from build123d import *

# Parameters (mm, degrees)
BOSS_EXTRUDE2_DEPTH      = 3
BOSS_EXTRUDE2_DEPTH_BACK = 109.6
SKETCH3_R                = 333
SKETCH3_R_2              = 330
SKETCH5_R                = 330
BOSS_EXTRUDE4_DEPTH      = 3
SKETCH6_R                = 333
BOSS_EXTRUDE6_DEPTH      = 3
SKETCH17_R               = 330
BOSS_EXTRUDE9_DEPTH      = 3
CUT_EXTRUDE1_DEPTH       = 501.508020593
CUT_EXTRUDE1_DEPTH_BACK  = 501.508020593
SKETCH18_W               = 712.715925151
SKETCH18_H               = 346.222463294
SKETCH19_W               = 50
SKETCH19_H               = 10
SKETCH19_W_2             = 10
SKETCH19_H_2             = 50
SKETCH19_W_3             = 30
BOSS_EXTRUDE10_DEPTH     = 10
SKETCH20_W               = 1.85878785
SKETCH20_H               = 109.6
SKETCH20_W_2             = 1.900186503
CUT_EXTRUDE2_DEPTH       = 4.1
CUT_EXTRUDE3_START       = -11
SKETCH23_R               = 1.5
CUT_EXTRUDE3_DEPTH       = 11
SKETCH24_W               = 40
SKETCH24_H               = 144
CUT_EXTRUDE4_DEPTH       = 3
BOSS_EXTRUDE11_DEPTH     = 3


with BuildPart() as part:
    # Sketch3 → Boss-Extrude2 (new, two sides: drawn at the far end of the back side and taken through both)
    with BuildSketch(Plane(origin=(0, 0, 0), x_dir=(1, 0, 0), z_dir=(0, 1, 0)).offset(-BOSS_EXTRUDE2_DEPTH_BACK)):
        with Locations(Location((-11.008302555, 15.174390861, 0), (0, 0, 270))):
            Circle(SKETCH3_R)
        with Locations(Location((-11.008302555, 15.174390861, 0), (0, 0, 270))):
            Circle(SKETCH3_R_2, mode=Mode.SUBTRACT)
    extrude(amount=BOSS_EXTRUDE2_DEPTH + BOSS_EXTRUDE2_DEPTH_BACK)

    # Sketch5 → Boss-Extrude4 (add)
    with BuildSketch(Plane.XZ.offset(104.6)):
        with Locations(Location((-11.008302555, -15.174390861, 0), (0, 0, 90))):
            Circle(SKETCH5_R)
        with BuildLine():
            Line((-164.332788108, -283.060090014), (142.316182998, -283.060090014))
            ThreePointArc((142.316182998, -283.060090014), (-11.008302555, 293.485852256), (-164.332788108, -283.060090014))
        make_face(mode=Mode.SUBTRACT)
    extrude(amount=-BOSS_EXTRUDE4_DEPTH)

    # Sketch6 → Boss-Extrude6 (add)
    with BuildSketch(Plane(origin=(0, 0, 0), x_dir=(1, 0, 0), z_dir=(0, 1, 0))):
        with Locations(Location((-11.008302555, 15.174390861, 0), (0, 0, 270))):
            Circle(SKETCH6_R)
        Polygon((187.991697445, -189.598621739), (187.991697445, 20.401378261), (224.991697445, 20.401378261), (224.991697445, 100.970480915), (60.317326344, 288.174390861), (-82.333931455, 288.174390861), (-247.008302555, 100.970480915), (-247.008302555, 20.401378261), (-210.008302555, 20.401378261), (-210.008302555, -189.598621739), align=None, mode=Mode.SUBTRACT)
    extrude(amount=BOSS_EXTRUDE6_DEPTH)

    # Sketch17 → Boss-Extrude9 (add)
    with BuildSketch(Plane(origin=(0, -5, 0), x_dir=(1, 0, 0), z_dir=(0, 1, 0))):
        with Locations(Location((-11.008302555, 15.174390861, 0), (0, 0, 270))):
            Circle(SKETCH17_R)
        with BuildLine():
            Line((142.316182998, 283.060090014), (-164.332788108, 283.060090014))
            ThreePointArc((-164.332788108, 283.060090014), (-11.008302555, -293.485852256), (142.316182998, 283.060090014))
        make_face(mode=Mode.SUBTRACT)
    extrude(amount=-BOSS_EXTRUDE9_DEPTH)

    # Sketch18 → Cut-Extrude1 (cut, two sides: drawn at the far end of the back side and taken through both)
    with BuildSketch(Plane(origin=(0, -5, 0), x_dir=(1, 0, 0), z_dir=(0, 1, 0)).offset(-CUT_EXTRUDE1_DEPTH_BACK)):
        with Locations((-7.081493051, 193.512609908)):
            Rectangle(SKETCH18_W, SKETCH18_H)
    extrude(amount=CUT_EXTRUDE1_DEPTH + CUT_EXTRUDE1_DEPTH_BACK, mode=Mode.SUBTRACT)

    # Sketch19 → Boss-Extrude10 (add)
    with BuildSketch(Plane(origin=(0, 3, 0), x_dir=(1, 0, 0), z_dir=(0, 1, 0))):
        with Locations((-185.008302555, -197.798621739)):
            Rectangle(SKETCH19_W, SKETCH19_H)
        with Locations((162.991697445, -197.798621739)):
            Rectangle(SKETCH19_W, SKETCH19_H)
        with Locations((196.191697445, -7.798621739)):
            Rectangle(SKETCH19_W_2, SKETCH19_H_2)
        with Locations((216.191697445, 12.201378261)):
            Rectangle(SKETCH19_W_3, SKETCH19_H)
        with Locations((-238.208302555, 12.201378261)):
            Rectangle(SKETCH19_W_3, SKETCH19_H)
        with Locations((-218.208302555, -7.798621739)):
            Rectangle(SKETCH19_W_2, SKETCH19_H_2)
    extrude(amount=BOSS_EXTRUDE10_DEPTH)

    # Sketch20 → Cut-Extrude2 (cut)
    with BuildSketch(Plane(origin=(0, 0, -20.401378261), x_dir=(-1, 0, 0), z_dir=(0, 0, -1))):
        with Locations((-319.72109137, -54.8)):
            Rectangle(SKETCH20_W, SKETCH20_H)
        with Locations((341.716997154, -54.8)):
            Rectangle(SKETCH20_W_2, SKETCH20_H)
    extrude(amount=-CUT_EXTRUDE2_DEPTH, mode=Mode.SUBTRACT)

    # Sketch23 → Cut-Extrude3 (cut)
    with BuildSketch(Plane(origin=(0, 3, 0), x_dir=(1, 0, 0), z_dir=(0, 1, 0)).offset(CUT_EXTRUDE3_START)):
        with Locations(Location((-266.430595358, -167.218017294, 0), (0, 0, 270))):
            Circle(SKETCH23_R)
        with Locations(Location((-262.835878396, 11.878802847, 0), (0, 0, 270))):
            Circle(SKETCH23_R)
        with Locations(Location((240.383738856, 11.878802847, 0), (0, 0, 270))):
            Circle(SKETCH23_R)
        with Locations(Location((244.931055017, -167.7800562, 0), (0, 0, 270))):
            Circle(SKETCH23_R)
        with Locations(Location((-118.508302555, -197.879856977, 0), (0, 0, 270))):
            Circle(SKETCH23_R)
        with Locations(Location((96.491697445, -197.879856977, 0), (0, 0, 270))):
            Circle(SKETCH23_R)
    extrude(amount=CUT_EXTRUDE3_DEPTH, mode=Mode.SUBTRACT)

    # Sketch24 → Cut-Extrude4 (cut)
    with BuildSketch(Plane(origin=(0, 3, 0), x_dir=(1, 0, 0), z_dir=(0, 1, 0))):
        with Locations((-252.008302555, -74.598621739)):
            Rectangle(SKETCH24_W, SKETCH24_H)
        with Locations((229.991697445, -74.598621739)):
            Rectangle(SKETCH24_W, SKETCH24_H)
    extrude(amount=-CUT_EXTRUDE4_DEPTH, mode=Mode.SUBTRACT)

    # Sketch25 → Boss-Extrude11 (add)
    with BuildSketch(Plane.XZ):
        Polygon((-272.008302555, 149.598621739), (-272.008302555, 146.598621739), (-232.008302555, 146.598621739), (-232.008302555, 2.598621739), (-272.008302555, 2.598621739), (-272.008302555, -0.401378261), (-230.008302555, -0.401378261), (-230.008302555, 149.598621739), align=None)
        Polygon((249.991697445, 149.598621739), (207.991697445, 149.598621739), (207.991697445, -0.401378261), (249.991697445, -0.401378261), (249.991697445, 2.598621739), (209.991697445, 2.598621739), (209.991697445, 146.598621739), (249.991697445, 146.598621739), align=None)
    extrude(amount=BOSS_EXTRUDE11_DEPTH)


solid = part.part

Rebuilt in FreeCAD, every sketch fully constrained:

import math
import FreeCAD as App
import Part
import Sketcher
from FreeCAD import Vector


def add_polygon(sketch, points):
    """Adds a closed chain of lines whose ends are joined by coincident constraints."""
    first, n = sketch.GeometryCount, len(points)
    for a, b in zip(points, points[1:] + points[:1]):
        sketch.addGeometry(Part.LineSegment(App.Vector(*a, 0), App.Vector(*b, 0)), False)
    for i in range(n):
        sketch.addConstraint(Sketcher.Constraint("Coincident", first + i, 2, first + (i + 1) % n, 1))

doc = App.newDocument("Part")
body = doc.addObject("PartDesign::Body", "Body")

sketch1 = body.newObject("Sketcher::SketchObject", "Sketch")
sketch1.AttachmentSupport = (doc.getObject("XZ_Plane"), [""])
sketch1.MapMode = "FlatFace"
sketch1.addGeometry(Part.Circle(Vector(-11, -15, 0), Vector(0, 0, 1), 333), False)
sketch1.addGeometry(Part.Circle(Vector(-11, -15, 0), Vector(0, 0, 1), 330), False)
sketch1.addConstraint(Sketcher.Constraint("Coincident", 1, 3, 0, 3))
sketch1.addConstraint(Sketcher.Constraint("Diameter", 0, 666.0))
sketch1.addConstraint(Sketcher.Constraint("Diameter", 1, 660.0))
sketch1.addConstraint(Sketcher.Constraint("DistanceY", 0, 3, -1, 1, 15.174391))
sketch1.addConstraint(Sketcher.Constraint("DistanceX", 0, 3, -1, 1, 11.008303))
pad1 = body.newObject("PartDesign::Pad", "Pad")
pad1.Profile = sketch1
pad1.Type = "TwoLengths"
pad1.Length = 3
pad1.Length2 = 109.6
pad1.Reversed = True

sketch2 = body.newObject("Sketcher::SketchObject", "Sketch001")
sketch2.AttachmentSupport = (doc.getObject("XZ_Plane"), [""])
sketch2.MapMode = "FlatFace"
sketch2.AttachmentOffset = App.Placement(Vector(0, 0, 104.6), App.Rotation())
sketch2.addGeometry(Part.Circle(Vector(-11, -15, 0), Vector(0, 0, 1), 330), False)
sketch2.addGeometry(Part.LineSegment(Vector(142, -283, 0), Vector(-164, -283, 0)), False)
sketch2.addGeometry(Part.ArcOfCircle(Part.Circle(Vector(-11, -15, 0), Vector(0, 0, 1), 309), math.radians(-60), math.radians(240)), False)
sketch2.addConstraint(Sketcher.Constraint("Coincident", 1, 1, 2, 1))
sketch2.addConstraint(Sketcher.Constraint("Coincident", 2, 2, 1, 2))
sketch2.addConstraint(Sketcher.Constraint("Horizontal", 1))
sketch2.addConstraint(Sketcher.Constraint("Coincident", 2, 3, 0, 3))
sketch2.addConstraint(Sketcher.Constraint("Diameter", 0, 660.0))
sketch2.addConstraint(Sketcher.Constraint("Radius", 2, 308.660243))
sketch2.addConstraint(Sketcher.Constraint("DistanceX", 1, 2, 1, 1, 306.648971))
sketch2.addConstraint(Sketcher.Constraint("DistanceY", 0, 3, -1, 1, 15.174391))
sketch2.addConstraint(Sketcher.Constraint("DistanceX", 0, 3, -1, 1, 11.008303))
pad2 = body.newObject("PartDesign::Pad", "Pad001")
pad2.Profile = sketch2
pad2.Length = 3
pad2.Reversed = True

sketch3 = body.newObject("Sketcher::SketchObject", "Sketch002")
sketch3.AttachmentSupport = (doc.getObject("XZ_Plane"), [""])
sketch3.MapMode = "FlatFace"
sketch3.addGeometry(Part.Circle(Vector(-11, -15, 0), Vector(0, 0, 1), 333), False)
add_polygon(sketch3, [(188, -20), (188, 190), (-210, 190), (-210, -20), (-247, -20), (-247, -101), (-82, -288), (60, -288), (225, -101), (225, -20)])
sketch3.addConstraint(Sketcher.Constraint("Vertical", 1))
sketch3.addConstraint(Sketcher.Constraint("Horizontal", 2))
sketch3.addConstraint(Sketcher.Constraint("Vertical", 3))
sketch3.addConstraint(Sketcher.Constraint("Horizontal", 4))
sketch3.addConstraint(Sketcher.Constraint("Vertical", 5))
sketch3.addConstraint(Sketcher.Constraint("Horizontal", 7))
sketch3.addConstraint(Sketcher.Constraint("Vertical", 9))
sketch3.addConstraint(Sketcher.Constraint("Horizontal", 10))
sketch3.addConstraint(Sketcher.Constraint("Horizontal", 5, 2, 8, 2))
sketch3.addConstraint(Sketcher.Constraint("Horizontal", 4, 2, 9, 2))
sketch3.addConstraint(Sketcher.Constraint("Equal", 4, 10))
sketch3.addConstraint(Sketcher.Constraint("Equal", 6, 8))
sketch3.addConstraint(Sketcher.Constraint("Diameter", 0, 666.0))
sketch3.addConstraint(Sketcher.Constraint("DistanceX", 2, 2, 2, 1, 398.0))
sketch3.addConstraint(Sketcher.Constraint("DistanceX", 4, 2, 4, 1, 37.0))
sketch3.addConstraint(Sketcher.Constraint("DistanceY", 1, 1, 1, 2, 210.0))
sketch3.addConstraint(Sketcher.Constraint("DistanceX", 0, 3, 1, 2, 199.0))
sketch3.addConstraint(Sketcher.Constraint("DistanceY", 6, 2, 0, 3, 273.0))
sketch3.addConstraint(Sketcher.Constraint("DistanceX", 7, 1, 7, 2, 142.651258))
sketch3.addConstraint(Sketcher.Constraint("DistanceY", 5, 2, 5, 1, 80.569103))
sketch3.addConstraint(Sketcher.Constraint("DistanceY", 0, 3, -1, 1, 15.174391))
sketch3.addConstraint(Sketcher.Constraint("DistanceY", -1, 1, 1, 2, 189.598622))
sketch3.addConstraint(Sketcher.Constraint("DistanceX", 6, 2, -1, 1, 82.333931))
pad3 = body.newObject("PartDesign::Pad", "Pad002")
pad3.Profile = sketch3
pad3.Length = 3
pad3.Reversed = True

sketch4 = body.newObject("Sketcher::SketchObject", "Sketch003")
sketch4.AttachmentSupport = (doc.getObject("XZ_Plane"), [""])
sketch4.MapMode = "FlatFace"
sketch4.AttachmentOffset = App.Placement(Vector(0, 0, 5), App.Rotation())
sketch4.addGeometry(Part.Circle(Vector(-11, -15, 0), Vector(0, 0, 1), 330), False)
sketch4.addGeometry(Part.LineSegment(Vector(-164, -283, 0), Vector(142, -283, 0)), False)
sketch4.addGeometry(Part.ArcOfCircle(Part.Circle(Vector(-11, -15, 0), Vector(0, 0, 1), 309), math.radians(-60), math.radians(240)), False)
sketch4.addConstraint(Sketcher.Constraint("Coincident", 1, 1, 2, 2))
sketch4.addConstraint(Sketcher.Constraint("Coincident", 2, 1, 1, 2))
sketch4.addConstraint(Sketcher.Constraint("Horizontal", 1))
sketch4.addConstraint(Sketcher.Constraint("Coincident", 2, 3, 0, 3))
sketch4.addConstraint(Sketcher.Constraint("Diameter", 0, 660.0))
sketch4.addConstraint(Sketcher.Constraint("Radius", 2, 308.660243))
sketch4.addConstraint(Sketcher.Constraint("DistanceX", 1, 1, 1, 2, 306.648971))
sketch4.addConstraint(Sketcher.Constraint("DistanceY", 0, 3, -1, 1, 15.174391))
sketch4.addConstraint(Sketcher.Constraint("DistanceX", 1, 1, -1, 1, 164.332788))
pad4 = body.newObject("PartDesign::Pad", "Pad003")
pad4.Profile = sketch4
pad4.Length = 3

sketch5 = body.newObject("Sketcher::SketchObject", "Sketch004")
sketch5.AttachmentSupport = (doc.getObject("XZ_Plane"), [""])
sketch5.MapMode = "FlatFace"
sketch5.AttachmentOffset = App.Placement(Vector(0, 0, 5), App.Rotation())
add_polygon(sketch5, [(-363, -367), (-363, -20), (349, -20), (349, -367)])
sketch5.addConstraint(Sketcher.Constraint("Vertical", 0))
sketch5.addConstraint(Sketcher.Constraint("Horizontal", 1))
sketch5.addConstraint(Sketcher.Constraint("Vertical", 2))
sketch5.addConstraint(Sketcher.Constraint("Horizontal", 3))
sketch5.addConstraint(Sketcher.Constraint("DistanceX", 1, 1, 1, 2, 712.715925))
sketch5.addConstraint(Sketcher.Constraint("DistanceY", 0, 1, 0, 2, 346.222463))
sketch5.addConstraint(Sketcher.Constraint("DistanceY", 0, 2, -1, 1, 20.401378))
sketch5.addConstraint(Sketcher.Constraint("DistanceX", -1, 1, 1, 2, 349.27647))
pocket1 = body.newObject("PartDesign::Pocket", "Pocket")
pocket1.Profile = sketch5
pocket1.Type = "ThroughAll"
pocket1.Midplane = True

sketch6 = body.newObject("Sketcher::SketchObject", "Sketch005")
sketch6.AttachmentSupport = (doc.getObject("XZ_Plane"), [""])
sketch6.MapMode = "FlatFace"
sketch6.AttachmentOffset = App.Placement(Vector(0, 0, -3), App.Rotation())
add_polygon(sketch6, [(-210, 193), (-210, 203), (-160, 203), (-160, 193)])
add_polygon(sketch6, [(138, 193), (138, 203), (188, 203), (188, 193)])
add_polygon(sketch6, [(191, -17), (191, 33), (201, 33), (201, -7), (231, -7), (231, -17)])
add_polygon(sketch6, [(-253, -17), (-253, -7), (-223, -7), (-223, 33), (-213, 33), (-213, -17)])
sketch6.addConstraint(Sketcher.Constraint("Vertical", 0))
sketch6.addConstraint(Sketcher.Constraint("Horizontal", 1))
sketch6.addConstraint(Sketcher.Constraint("Vertical", 2))
sketch6.addConstraint(Sketcher.Constraint("Horizontal", 3))
sketch6.addConstraint(Sketcher.Constraint("Vertical", 4))
sketch6.addConstraint(Sketcher.Constraint("Horizontal", 5))
sketch6.addConstraint(Sketcher.Constraint("Vertical", 6))
sketch6.addConstraint(Sketcher.Constraint("Horizontal", 7))
sketch6.addConstraint(Sketcher.Constraint("Vertical", 8))
sketch6.addConstraint(Sketcher.Constraint("Horizontal", 9))
sketch6.addConstraint(Sketcher.Constraint("Vertical", 10))
sketch6.addConstraint(Sketcher.Constraint("Horizontal", 11))
sketch6.addConstraint(Sketcher.Constraint("Vertical", 12))
sketch6.addConstraint(Sketcher.Constraint("Horizontal", 13))
sketch6.addConstraint(Sketcher.Constraint("Vertical", 14))
sketch6.addConstraint(Sketcher.Constraint("Horizontal", 15))
sketch6.addConstraint(Sketcher.Constraint("Vertical", 16))
sketch6.addConstraint(Sketcher.Constraint("Horizontal", 17))
sketch6.addConstraint(Sketcher.Constraint("Vertical", 18))
sketch6.addConstraint(Sketcher.Constraint("Horizontal", 19))
sketch6.addConstraint(Sketcher.Constraint("Horizontal", 1, 2, 4, 2))
sketch6.addConstraint(Sketcher.Constraint("Horizontal", 3, 2, 6, 2))
sketch6.addConstraint(Sketcher.Constraint("Horizontal", 11, 2, 14, 2))
sketch6.addConstraint(Sketcher.Constraint("Horizontal", 9, 2, 16, 2))
sketch6.addConstraint(Sketcher.Constraint("Horizontal", 13, 2, 18, 2))
sketch6.addConstraint(Sketcher.Constraint("Equal", 3, 5))
sketch6.addConstraint(Sketcher.Constraint("Equal", 11, 15))
sketch6.addConstraint(Sketcher.Constraint("Equal", 9, 17))
sketch6.addConstraint(Sketcher.Constraint("Equal", 17, 0))
sketch6.addConstraint(Sketcher.Constraint("Equal", 7, 8))
sketch6.addConstraint(Sketcher.Constraint("Equal", 19, 10))
sketch6.addConstraint(Sketcher.Constraint("Equal", 6, 12))
sketch6.addConstraint(Sketcher.Constraint("DistanceX", 1, 1, 1, 2, 50.0))
sketch6.addConstraint(Sketcher.Constraint("DistanceX", 9, 1, 9, 2, 10.0))
sketch6.addConstraint(Sketcher.Constraint("DistanceX", 1, 2, 4, 2, 298.0))
sketch6.addConstraint(Sketcher.Constraint("DistanceY", 8, 2, 6, 2, 160.0))
sketch6.addConstraint(Sketcher.Constraint("DistanceX", 6, 2, 8, 2, 3.2))
sketch6.addConstraint(Sketcher.Constraint("DistanceX", 14, 2, 3, 2, 43.2))
sketch6.addConstraint(Sketcher.Constraint("DistanceY", -1, 1, 0, 2, 202.798622))
sketch6.addConstraint(Sketcher.Constraint("DistanceX", 0, 2, -1, 1, 210.008303))
pad5 = body.newObject("PartDesign::Pad", "Pad004")
pad5.Profile = sketch6
pad5.Length = 10
pad5.Reversed = True

sketch7 = body.newObject("Sketcher::SketchObject", "Sketch006")
sketch7.AttachmentSupport = (doc.getObject("XY_Plane"), [""])
sketch7.MapMode = "FlatFace"
sketch7.AttachmentOffset = App.Placement(Vector(0, 0, -20.401378), App.Rotation())
add_polygon(sketch7, [(320.7, 0), (320.7, -109.6), (318.8, -109.6), (318.8, 0)])
add_polygon(sketch7, [(-340.8, 0), (-340.8, -109.6), (-342.7, -109.6), (-342.7, 0)])
sketch7.addConstraint(Sketcher.Constraint("Vertical", 0))
sketch7.addConstraint(Sketcher.Constraint("Horizontal", 1))
sketch7.addConstraint(Sketcher.Constraint("Vertical", 2))
sketch7.addConstraint(Sketcher.Constraint("Horizontal", 3))
sketch7.addConstraint(Sketcher.Constraint("Vertical", 4))
sketch7.addConstraint(Sketcher.Constraint("Horizontal", 5))
sketch7.addConstraint(Sketcher.Constraint("Vertical", 6))
sketch7.addConstraint(Sketcher.Constraint("Horizontal", 7))
sketch7.addConstraint(Sketcher.Constraint("PointOnObject", 2, 2, -1))
sketch7.addConstraint(Sketcher.Constraint("PointOnObject", 6, 2, -1))
sketch7.addConstraint(Sketcher.Constraint("Horizontal", 1, 2, 4, 2))
sketch7.addConstraint(Sketcher.Constraint("DistanceY", 0, 2, 0, 1, 109.6))
sketch7.addConstraint(Sketcher.Constraint("DistanceX", 4, 2, 1, 2, 659.558601))
sketch7.addConstraint(Sketcher.Constraint("DistanceX", 1, 2, 1, 1, 1.858788))
sketch7.addConstraint(Sketcher.Constraint("DistanceX", 5, 2, 5, 1, 1.900187))
sketch7.addConstraint(Sketcher.Constraint("DistanceX", 5, 2, -1, 1, 342.66709))
pocket2 = body.newObject("PartDesign::Pocket", "Pocket001")
pocket2.Profile = sketch7
pocket2.Length = 4.1
pocket2.Reversed = True

sketch8 = body.newObject("Sketcher::SketchObject", "Sketch007")
sketch8.AttachmentSupport = (doc.getObject("XZ_Plane"), [""])
sketch8.MapMode = "FlatFace"
sketch8.AttachmentOffset = App.Placement(Vector(0, 0, 8), App.Rotation())
sketch8.addGeometry(Part.Circle(Vector(-266.4, 167.2, 0), Vector(0, 0, 1), 1.5), False)
sketch8.addGeometry(Part.Circle(Vector(-262.8, -11.9, 0), Vector(0, 0, 1), 1.5), False)
sketch8.addGeometry(Part.Circle(Vector(240.4, -11.9, 0), Vector(0, 0, 1), 1.5), False)
sketch8.addGeometry(Part.Circle(Vector(244.9, 167.8, 0), Vector(0, 0, 1), 1.5), False)
sketch8.addGeometry(Part.Circle(Vector(-118.5, 197.9, 0), Vector(0, 0, 1), 1.5), False)
sketch8.addGeometry(Part.Circle(Vector(96.5, 197.9, 0), Vector(0, 0, 1), 1.5), False)
sketch8.addConstraint(Sketcher.Constraint("Equal", 0, 1))
sketch8.addConstraint(Sketcher.Constraint("Equal", 1, 2))
sketch8.addConstraint(Sketcher.Constraint("Equal", 2, 3))
sketch8.addConstraint(Sketcher.Constraint("Equal", 3, 4))
sketch8.addConstraint(Sketcher.Constraint("Equal", 4, 5))
sketch8.addConstraint(Sketcher.Constraint("Horizontal", 1, 3, 2, 3))
sketch8.addConstraint(Sketcher.Constraint("Horizontal", 4, 3, 5, 3))
sketch8.addConstraint(Sketcher.Constraint("Diameter", 0, 3.0))
sketch8.addConstraint(Sketcher.Constraint("DistanceX", 4, 3, 5, 3, 215.0))
sketch8.addConstraint(Sketcher.Constraint("DistanceY", 3, 3, 4, 3, 30.099801))
sketch8.addConstraint(Sketcher.Constraint("DistanceX", 1, 3, -1, 1, 262.835878))
sketch8.addConstraint(Sketcher.Constraint("DistanceX", -1, 1, 2, 3, 240.383739))
sketch8.addConstraint(Sketcher.Constraint("DistanceY", 1, 3, 0, 3, 179.09682))
sketch8.addConstraint(Sketcher.Constraint("DistanceY", 2, 3, 3, 3, 179.658859))
sketch8.addConstraint(Sketcher.Constraint("DistanceX", 0, 3, 3, 3, 511.36165))
sketch8.addConstraint(Sketcher.Constraint("DistanceX", 4, 3, 2, 3, 358.892041))
sketch8.addConstraint(Sketcher.Constraint("DistanceX", 0, 3, -1, 1, 266.430595))
sketch8.addConstraint(Sketcher.Constraint("DistanceY", -1, 1, 0, 3, 167.218017))
pocket3 = body.newObject("PartDesign::Pocket", "Pocket002")
pocket3.Profile = sketch8
pocket3.Length = 11

sketch9 = body.newObject("Sketcher::SketchObject", "Sketch008")
sketch9.AttachmentSupport = (doc.getObject("XZ_Plane"), [""])
sketch9.MapMode = "FlatFace"
sketch9.AttachmentOffset = App.Placement(Vector(0, 0, -3), App.Rotation())
add_polygon(sketch9, [(-272, 3), (-272, 147), (-232, 147), (-232, 3)])
add_polygon(sketch9, [(210, 3), (210, 147), (250, 147), (250, 3)])
sketch9.addConstraint(Sketcher.Constraint("Vertical", 0))
sketch9.addConstraint(Sketcher.Constraint("Horizontal", 1))
sketch9.addConstraint(Sketcher.Constraint("Vertical", 2))
sketch9.addConstraint(Sketcher.Constraint("Horizontal", 3))
sketch9.addConstraint(Sketcher.Constraint("Vertical", 4))
sketch9.addConstraint(Sketcher.Constraint("Horizontal", 5))
sketch9.addConstraint(Sketcher.Constraint("Vertical", 6))
sketch9.addConstraint(Sketcher.Constraint("Horizontal", 7))
sketch9.addConstraint(Sketcher.Constraint("Horizontal", 1, 2, 4, 2))
sketch9.addConstraint(Sketcher.Constraint("Horizontal", 3, 2, 6, 2))
sketch9.addConstraint(Sketcher.Constraint("Equal", 3, 5))
sketch9.addConstraint(Sketcher.Constraint("DistanceX", 1, 1, 1, 2, 40.0))
sketch9.addConstraint(Sketcher.Constraint("DistanceY", 0, 1, 0, 2, 144.0))
sketch9.addConstraint(Sketcher.Constraint("DistanceX", 1, 2, 4, 2, 442.0))
sketch9.addConstraint(Sketcher.Constraint("DistanceY", -1, 1, 0, 2, 146.598622))
sketch9.addConstraint(Sketcher.Constraint("DistanceX", 0, 2, -1, 1, 272.008303))
pocket4 = body.newObject("PartDesign::Pocket", "Pocket003")
pocket4.Profile = sketch9
pocket4.Length = 3
pocket4.Reversed = True

sketch10 = body.newObject("Sketcher::SketchObject", "Sketch009")
sketch10.AttachmentSupport = (doc.getObject("XZ_Plane"), [""])
sketch10.MapMode = "FlatFace"
add_polygon(sketch10, [(-272, 149.6), (-272, 146.6), (-232, 146.6), (-232, 2.6), (-272, 2.6), (-272, -0.4), (-230, -0.4), (-230, 149.6)])
add_polygon(sketch10, [(250, 149.6), (208, 149.6), (208, -0.4), (250, -0.4), (250, 2.6), (210, 2.6), (210, 146.6), (250, 146.6)])
sketch10.addConstraint(Sketcher.Constraint("Vertical", 0))
sketch10.addConstraint(Sketcher.Constraint("Horizontal", 1))
sketch10.addConstraint(Sketcher.Constraint("Vertical", 2))
sketch10.addConstraint(Sketcher.Constraint("Horizontal", 3))
sketch10.addConstraint(Sketcher.Constraint("Vertical", 4))
sketch10.addConstraint(Sketcher.Constraint("Horizontal", 5))
sketch10.addConstraint(Sketcher.Constraint("Vertical", 6))
sketch10.addConstraint(Sketcher.Constraint("Horizontal", 7))
sketch10.addConstraint(Sketcher.Constraint("Horizontal", 8))
sketch10.addConstraint(Sketcher.Constraint("Vertical", 9))
sketch10.addConstraint(Sketcher.Constraint("Horizontal", 10))
sketch10.addConstraint(Sketcher.Constraint("Vertical", 11))
sketch10.addConstraint(Sketcher.Constraint("Horizontal", 12))
sketch10.addConstraint(Sketcher.Constraint("Vertical", 13))
sketch10.addConstraint(Sketcher.Constraint("Horizontal", 14))
sketch10.addConstraint(Sketcher.Constraint("Vertical", 15))
sketch10.addConstraint(Sketcher.Constraint("Horizontal", 7, 2, 8, 2))
sketch10.addConstraint(Sketcher.Constraint("Horizontal", 5, 2, 9, 2))
sketch10.addConstraint(Sketcher.Constraint("Horizontal", 3, 2, 11, 2))
sketch10.addConstraint(Sketcher.Constraint("Horizontal", 1, 2, 13, 2))
sketch10.addConstraint(Sketcher.Constraint("Vertical", 0, 2, 3, 2))
sketch10.addConstraint(Sketcher.Constraint("Vertical", 11, 2, 14, 2))
sketch10.addConstraint(Sketcher.Constraint("Equal", 7, 8))
sketch10.addConstraint(Sketcher.Constraint("Equal", 3, 12))
sketch10.addConstraint(Sketcher.Constraint("Equal", 0, 4))
sketch10.addConstraint(Sketcher.Constraint("DistanceX", 1, 1, 1, 2, 40.0))
sketch10.addConstraint(Sketcher.Constraint("DistanceX", 5, 1, 5, 2, 42.0))
sketch10.addConstraint(Sketcher.Constraint("DistanceY", 0, 2, 0, 1, 3.0))
sketch10.addConstraint(Sketcher.Constraint("DistanceY", 2, 2, 2, 1, 144.0))
sketch10.addConstraint(Sketcher.Constraint("DistanceX", 6, 2, 8, 2, 438.0))
sketch10.addConstraint(Sketcher.Constraint("DistanceY", -1, 1, 0, 2, 146.598622))
sketch10.addConstraint(Sketcher.Constraint("DistanceX", 0, 2, -1, 1, 272.008303))
pad6 = body.newObject("PartDesign::Pad", "Pad005")
pad6.Profile = sketch10
pad6.Length = 3

doc.recompute()
